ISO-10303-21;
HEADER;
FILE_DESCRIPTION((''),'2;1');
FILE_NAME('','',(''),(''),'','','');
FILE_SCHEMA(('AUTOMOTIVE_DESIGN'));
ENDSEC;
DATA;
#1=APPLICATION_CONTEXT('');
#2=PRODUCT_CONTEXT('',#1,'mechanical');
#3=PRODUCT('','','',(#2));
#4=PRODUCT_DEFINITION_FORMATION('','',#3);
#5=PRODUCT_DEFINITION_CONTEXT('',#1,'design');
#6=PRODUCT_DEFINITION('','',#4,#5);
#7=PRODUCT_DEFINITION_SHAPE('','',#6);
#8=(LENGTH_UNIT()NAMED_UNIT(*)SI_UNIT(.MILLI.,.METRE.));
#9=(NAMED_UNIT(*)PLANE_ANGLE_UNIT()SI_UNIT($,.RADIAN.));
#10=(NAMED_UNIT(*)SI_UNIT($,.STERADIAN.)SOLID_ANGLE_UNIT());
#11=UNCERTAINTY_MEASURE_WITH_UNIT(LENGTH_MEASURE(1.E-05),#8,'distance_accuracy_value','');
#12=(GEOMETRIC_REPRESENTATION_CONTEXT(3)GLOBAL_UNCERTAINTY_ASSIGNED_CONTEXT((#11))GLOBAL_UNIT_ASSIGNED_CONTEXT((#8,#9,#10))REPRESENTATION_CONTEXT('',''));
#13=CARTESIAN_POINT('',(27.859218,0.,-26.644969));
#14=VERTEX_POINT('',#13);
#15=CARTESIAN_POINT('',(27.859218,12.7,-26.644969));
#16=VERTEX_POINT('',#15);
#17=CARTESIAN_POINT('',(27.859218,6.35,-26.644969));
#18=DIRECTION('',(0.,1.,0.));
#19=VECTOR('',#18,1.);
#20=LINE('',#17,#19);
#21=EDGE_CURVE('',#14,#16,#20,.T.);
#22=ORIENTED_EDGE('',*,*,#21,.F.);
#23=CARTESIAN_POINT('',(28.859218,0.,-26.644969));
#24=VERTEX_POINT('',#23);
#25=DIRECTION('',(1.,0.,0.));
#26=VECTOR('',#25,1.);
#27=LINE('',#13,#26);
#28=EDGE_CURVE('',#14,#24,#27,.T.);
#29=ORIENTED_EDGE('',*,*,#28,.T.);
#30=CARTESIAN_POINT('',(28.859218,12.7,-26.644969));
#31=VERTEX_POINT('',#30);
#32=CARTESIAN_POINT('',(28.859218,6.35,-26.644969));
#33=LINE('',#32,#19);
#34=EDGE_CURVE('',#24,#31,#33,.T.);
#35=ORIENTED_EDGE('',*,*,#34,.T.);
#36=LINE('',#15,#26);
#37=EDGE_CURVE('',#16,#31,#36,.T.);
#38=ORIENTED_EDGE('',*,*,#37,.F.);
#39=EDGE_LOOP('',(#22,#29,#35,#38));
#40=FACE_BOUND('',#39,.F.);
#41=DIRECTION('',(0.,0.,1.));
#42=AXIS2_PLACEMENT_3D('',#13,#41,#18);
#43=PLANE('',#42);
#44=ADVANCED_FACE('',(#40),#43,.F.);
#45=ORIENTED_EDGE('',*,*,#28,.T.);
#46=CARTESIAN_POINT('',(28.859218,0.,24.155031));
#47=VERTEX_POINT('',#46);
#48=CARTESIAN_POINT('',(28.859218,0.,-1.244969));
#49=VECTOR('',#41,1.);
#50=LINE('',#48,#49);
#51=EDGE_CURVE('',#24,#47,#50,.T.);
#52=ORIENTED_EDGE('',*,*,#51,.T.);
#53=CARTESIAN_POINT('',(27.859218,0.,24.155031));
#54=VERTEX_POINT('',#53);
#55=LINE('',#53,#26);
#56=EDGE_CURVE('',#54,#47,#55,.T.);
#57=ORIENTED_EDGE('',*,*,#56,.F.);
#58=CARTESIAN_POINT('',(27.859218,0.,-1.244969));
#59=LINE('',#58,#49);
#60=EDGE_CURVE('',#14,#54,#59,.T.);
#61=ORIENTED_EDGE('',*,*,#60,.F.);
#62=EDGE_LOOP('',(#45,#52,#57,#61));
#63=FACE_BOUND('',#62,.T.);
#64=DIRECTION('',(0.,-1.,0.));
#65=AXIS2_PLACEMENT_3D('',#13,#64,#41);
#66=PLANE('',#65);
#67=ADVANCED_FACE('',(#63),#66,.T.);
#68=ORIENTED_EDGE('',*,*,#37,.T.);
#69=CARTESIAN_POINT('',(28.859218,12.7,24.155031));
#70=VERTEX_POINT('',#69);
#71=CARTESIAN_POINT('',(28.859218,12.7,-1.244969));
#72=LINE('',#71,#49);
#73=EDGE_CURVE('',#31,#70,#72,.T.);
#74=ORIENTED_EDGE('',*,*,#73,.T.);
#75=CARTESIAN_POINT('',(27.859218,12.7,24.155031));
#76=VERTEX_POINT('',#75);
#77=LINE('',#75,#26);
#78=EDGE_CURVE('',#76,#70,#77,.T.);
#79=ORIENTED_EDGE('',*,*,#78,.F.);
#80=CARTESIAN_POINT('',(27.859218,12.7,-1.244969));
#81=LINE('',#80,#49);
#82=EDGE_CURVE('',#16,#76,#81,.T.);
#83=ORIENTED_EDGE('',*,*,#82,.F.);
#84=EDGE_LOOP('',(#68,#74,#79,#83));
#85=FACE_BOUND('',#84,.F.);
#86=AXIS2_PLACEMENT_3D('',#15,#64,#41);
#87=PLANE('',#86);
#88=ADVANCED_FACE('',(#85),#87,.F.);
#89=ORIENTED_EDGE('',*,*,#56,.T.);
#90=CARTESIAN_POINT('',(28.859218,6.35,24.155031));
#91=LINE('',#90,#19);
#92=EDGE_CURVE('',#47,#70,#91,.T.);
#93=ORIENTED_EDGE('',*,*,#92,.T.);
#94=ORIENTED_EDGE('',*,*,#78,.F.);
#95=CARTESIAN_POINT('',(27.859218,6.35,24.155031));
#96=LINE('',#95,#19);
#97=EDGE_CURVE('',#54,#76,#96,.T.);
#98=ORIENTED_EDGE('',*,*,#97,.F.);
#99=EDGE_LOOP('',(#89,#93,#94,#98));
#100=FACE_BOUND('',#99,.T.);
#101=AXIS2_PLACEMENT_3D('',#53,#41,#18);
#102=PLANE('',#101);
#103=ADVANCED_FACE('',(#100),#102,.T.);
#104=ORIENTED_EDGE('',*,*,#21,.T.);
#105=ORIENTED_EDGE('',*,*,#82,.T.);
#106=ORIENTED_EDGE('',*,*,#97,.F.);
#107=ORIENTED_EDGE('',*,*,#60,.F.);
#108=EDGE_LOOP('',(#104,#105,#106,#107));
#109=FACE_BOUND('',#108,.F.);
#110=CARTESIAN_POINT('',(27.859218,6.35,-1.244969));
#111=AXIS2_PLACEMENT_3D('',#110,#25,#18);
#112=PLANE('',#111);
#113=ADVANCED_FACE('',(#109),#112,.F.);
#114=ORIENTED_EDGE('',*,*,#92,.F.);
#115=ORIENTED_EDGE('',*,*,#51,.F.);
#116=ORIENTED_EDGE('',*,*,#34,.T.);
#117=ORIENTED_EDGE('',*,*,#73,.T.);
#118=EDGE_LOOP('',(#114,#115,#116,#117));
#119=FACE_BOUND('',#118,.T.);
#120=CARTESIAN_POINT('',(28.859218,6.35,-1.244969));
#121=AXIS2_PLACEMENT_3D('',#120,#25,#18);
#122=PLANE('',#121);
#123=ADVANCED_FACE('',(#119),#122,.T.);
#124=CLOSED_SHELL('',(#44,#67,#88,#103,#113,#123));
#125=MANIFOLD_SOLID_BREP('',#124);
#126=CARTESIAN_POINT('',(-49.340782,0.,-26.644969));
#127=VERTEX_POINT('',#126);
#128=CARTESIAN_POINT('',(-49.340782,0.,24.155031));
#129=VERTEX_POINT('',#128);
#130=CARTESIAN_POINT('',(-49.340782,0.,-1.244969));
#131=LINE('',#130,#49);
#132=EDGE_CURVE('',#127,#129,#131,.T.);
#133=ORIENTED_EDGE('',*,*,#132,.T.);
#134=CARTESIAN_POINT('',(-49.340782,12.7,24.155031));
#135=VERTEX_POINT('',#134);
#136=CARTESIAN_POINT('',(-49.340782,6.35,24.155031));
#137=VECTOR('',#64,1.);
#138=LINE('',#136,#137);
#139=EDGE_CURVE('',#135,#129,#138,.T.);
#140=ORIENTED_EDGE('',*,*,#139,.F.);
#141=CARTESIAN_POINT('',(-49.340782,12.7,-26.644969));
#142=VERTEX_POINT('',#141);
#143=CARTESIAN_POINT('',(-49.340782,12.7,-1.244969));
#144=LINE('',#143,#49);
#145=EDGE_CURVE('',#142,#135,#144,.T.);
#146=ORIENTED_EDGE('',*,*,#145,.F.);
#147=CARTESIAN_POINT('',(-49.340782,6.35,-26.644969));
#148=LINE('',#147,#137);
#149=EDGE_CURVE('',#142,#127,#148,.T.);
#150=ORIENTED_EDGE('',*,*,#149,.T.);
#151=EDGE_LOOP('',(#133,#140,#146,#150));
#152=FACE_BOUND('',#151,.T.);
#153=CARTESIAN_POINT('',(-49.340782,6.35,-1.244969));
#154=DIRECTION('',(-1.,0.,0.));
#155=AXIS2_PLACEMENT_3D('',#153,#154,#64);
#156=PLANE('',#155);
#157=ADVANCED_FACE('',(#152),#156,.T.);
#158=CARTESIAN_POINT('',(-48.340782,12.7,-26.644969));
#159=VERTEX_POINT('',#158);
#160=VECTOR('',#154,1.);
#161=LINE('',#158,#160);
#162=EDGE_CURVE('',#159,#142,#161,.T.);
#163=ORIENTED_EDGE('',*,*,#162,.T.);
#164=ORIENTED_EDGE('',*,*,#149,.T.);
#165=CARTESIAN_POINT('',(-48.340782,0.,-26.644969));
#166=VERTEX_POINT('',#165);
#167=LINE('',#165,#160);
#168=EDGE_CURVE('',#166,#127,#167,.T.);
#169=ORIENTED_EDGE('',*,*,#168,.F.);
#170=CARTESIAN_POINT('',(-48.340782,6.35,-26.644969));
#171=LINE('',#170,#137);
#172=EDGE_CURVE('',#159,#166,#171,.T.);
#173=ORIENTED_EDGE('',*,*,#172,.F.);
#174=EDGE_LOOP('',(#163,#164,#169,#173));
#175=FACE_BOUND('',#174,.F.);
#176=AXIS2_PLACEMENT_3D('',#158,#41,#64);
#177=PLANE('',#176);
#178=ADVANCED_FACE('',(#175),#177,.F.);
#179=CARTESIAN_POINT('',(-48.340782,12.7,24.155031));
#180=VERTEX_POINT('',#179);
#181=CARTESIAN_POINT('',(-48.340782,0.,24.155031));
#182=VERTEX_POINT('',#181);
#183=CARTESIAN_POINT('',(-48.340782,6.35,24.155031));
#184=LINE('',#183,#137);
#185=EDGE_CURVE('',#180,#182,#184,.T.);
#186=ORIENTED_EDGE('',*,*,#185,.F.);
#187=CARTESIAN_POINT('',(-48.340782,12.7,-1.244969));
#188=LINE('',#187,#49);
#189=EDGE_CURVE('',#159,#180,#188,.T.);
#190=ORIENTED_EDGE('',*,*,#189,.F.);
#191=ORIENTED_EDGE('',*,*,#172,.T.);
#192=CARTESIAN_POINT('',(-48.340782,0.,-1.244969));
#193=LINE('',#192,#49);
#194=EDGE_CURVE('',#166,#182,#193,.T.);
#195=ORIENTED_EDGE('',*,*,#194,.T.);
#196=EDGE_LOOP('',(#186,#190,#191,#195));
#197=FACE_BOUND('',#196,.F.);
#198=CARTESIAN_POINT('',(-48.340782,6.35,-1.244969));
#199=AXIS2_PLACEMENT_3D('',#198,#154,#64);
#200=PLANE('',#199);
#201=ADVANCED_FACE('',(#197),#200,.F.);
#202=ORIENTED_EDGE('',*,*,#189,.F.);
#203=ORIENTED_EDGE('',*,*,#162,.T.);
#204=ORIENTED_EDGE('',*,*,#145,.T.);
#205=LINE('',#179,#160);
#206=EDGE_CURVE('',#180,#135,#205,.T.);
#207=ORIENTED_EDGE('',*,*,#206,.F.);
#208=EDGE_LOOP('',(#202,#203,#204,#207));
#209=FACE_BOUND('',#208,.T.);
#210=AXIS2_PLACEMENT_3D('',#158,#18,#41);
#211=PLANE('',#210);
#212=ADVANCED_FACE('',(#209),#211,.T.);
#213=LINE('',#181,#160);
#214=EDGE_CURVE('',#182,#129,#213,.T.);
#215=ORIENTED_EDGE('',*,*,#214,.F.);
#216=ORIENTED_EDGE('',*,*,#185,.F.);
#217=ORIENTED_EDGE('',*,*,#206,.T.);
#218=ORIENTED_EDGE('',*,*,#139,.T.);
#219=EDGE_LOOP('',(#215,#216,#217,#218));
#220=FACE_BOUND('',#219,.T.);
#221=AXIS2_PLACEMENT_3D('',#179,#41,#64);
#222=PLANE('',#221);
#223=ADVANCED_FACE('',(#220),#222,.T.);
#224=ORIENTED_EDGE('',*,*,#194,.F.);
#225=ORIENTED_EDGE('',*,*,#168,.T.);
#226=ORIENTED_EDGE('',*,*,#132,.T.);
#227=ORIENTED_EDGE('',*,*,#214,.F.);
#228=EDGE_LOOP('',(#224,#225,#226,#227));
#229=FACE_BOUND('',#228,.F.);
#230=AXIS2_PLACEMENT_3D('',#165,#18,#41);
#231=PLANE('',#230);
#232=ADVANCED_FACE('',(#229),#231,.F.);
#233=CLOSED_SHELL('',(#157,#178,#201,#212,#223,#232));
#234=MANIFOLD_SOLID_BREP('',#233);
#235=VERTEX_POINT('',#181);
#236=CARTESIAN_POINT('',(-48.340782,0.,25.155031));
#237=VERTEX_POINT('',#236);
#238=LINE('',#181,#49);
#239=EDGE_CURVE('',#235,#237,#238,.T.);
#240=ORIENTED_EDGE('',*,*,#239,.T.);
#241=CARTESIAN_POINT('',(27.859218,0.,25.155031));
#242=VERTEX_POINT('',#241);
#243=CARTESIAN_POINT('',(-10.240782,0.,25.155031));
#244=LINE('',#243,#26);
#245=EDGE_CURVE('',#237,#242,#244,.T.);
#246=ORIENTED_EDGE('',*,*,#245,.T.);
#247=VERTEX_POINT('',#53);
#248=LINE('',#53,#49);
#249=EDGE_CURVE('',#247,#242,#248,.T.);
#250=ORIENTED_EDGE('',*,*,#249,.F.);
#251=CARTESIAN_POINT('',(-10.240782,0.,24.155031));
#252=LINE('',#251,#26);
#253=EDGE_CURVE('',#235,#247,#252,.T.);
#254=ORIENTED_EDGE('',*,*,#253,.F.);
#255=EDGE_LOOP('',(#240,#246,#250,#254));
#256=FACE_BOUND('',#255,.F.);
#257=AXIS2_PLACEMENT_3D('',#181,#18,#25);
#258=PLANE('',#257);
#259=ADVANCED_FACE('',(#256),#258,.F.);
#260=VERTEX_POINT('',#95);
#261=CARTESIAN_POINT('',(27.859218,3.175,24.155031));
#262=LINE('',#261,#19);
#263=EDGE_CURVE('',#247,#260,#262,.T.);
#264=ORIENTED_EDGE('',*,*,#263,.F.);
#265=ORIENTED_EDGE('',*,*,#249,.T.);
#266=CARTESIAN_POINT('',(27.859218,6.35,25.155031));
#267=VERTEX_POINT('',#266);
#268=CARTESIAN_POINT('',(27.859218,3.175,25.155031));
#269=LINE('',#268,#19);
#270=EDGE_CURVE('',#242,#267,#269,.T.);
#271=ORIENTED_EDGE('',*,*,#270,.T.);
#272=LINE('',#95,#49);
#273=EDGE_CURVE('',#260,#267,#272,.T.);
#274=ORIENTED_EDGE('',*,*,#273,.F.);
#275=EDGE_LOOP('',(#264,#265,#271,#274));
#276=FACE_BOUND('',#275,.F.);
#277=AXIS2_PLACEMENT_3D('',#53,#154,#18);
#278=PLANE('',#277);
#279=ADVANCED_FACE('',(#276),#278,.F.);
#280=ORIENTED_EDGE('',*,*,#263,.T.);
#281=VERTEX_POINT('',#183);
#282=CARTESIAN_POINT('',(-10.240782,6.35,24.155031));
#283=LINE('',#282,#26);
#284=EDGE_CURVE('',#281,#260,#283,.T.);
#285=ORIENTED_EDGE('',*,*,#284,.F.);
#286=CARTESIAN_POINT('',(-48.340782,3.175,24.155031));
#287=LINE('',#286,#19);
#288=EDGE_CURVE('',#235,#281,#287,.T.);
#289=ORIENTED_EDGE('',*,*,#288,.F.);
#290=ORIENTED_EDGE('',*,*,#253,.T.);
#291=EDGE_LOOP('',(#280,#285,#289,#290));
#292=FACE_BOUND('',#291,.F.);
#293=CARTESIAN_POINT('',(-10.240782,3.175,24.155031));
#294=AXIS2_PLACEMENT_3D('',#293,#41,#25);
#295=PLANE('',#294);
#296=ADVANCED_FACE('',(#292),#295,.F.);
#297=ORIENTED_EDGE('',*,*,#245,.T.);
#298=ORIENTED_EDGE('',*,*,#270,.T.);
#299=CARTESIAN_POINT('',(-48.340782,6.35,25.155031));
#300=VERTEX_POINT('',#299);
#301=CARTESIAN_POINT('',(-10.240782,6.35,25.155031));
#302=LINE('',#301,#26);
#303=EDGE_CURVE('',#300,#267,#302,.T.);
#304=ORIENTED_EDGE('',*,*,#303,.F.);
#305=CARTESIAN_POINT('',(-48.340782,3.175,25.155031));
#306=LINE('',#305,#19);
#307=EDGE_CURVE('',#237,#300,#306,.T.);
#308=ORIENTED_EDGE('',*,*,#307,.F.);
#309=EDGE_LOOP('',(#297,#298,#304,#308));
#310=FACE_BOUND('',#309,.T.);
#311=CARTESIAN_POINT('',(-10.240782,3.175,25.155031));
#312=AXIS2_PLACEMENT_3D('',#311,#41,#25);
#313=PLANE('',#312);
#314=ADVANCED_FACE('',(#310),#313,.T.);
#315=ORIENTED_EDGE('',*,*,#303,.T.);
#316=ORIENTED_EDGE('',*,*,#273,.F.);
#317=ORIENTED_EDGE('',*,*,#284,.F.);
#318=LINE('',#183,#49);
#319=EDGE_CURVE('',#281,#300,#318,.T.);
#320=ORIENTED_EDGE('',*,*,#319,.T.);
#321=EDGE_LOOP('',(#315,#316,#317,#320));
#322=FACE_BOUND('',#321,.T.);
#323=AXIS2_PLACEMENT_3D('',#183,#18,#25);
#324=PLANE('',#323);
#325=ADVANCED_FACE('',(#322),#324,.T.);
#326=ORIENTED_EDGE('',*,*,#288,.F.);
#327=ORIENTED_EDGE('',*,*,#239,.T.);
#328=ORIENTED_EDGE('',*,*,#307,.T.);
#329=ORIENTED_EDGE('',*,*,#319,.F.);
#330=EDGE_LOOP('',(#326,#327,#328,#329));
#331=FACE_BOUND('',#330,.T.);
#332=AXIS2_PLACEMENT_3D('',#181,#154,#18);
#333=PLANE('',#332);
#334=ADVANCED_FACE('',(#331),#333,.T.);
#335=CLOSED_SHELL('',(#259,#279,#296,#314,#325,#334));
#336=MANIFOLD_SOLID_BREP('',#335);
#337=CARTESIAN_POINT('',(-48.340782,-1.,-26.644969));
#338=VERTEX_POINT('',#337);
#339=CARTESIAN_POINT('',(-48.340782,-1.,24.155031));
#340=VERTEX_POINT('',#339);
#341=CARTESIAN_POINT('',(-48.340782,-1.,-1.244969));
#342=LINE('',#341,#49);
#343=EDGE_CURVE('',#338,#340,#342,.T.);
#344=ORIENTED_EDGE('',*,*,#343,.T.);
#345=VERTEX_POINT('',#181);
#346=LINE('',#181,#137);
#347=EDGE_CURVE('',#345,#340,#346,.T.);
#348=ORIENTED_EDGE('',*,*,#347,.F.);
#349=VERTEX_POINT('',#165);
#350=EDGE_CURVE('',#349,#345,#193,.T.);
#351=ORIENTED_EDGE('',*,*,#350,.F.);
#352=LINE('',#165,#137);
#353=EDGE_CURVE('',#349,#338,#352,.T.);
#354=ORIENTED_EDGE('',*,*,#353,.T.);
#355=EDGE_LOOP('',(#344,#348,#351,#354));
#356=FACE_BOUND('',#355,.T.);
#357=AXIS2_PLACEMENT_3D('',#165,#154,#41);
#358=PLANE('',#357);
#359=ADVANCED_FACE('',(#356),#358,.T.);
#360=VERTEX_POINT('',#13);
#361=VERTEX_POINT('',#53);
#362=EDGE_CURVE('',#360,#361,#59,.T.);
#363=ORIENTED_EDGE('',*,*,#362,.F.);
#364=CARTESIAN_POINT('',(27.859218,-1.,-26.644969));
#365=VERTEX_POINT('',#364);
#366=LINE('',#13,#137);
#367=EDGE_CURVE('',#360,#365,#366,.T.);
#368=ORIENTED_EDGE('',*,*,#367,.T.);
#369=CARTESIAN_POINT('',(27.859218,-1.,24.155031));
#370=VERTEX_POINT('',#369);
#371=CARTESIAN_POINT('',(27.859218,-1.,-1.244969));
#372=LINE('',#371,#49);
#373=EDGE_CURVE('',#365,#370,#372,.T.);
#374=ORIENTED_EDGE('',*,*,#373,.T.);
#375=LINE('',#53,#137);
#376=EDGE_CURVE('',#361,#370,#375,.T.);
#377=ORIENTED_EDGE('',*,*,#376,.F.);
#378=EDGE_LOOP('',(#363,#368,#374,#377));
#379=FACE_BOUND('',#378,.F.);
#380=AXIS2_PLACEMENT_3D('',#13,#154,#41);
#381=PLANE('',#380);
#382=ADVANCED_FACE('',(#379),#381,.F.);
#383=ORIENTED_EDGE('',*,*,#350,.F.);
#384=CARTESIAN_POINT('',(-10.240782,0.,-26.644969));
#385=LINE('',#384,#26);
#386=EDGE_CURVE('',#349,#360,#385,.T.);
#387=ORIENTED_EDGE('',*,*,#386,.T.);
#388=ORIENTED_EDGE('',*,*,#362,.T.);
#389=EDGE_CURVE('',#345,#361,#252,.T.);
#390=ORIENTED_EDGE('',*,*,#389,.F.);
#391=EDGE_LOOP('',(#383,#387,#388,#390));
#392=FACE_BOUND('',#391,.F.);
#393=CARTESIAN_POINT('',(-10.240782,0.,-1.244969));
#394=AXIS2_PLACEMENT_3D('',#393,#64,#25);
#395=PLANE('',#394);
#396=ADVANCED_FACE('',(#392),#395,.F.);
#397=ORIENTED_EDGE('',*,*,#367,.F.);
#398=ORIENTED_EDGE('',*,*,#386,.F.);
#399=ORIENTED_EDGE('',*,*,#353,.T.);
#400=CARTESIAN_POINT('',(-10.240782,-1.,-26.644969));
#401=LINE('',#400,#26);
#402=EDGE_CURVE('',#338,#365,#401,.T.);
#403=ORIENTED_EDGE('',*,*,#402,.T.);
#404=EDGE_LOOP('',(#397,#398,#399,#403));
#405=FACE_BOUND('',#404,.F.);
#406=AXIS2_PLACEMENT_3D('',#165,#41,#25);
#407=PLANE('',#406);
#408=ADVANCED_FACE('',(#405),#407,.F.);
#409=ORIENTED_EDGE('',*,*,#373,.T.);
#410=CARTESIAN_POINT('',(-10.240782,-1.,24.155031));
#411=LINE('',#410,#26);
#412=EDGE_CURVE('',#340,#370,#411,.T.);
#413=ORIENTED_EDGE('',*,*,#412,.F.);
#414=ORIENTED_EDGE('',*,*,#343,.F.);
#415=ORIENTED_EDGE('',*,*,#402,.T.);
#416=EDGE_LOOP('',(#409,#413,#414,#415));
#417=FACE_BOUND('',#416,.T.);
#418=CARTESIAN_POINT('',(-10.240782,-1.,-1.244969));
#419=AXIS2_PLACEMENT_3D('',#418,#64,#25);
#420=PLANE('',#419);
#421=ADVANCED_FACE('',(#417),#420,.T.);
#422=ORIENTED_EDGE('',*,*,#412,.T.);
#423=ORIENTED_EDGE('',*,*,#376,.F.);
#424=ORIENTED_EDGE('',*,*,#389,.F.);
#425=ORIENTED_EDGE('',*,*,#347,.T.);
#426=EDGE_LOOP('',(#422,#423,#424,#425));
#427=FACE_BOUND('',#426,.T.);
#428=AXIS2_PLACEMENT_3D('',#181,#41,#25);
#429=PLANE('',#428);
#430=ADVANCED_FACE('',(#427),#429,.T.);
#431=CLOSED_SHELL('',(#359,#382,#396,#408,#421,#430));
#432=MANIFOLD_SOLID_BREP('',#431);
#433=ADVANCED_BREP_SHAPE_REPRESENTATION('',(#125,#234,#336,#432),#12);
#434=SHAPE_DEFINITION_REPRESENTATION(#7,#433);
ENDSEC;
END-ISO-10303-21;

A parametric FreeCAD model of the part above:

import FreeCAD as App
import Part
import Sketcher
from FreeCAD import Vector
Q = App.Units.Quantity

doc = App.newDocument("Part")
body = doc.addObject("PartDesign::Body", "Body")

# Sketch on XZ plane
sketch1 = body.newObject("Sketcher::SketchObject", "Sketch")
sketch1.AttachmentSupport = (doc.getObject("XZ_Plane"), [""])
sketch1.MapMode = "FlatFace"
sketch1.addGeometry(Part.LineSegment(Vector(-48.340782, 24.155031, 0), Vector(-48.340782, -26.644969, 0)), False)
sketch1.addGeometry(Part.LineSegment(Vector(-48.340782, -26.644969, 0), Vector(27.859218, -26.644969, 0)), False)
sketch1.addGeometry(Part.LineSegment(Vector(27.859218, -26.644969, 0), Vector(27.859218, 24.155031, 0)), False)
sketch1.addGeometry(Part.LineSegment(Vector(27.859218, 24.155031, 0), Vector(-48.340782, 24.155031, 0)), False)
sketch1.addConstraint(Sketcher.Constraint("Coincident", 0, 2, 1, 1))
sketch1.addConstraint(Sketcher.Constraint("Coincident", 1, 2, 2, 1))
sketch1.addConstraint(Sketcher.Constraint("Coincident", 2, 2, 3, 1))
sketch1.addConstraint(Sketcher.Constraint("Coincident", 3, 2, 0, 1))
sketch1.addConstraint(Sketcher.Constraint("Vertical", 0))
sketch1.addConstraint(Sketcher.Constraint("Horizontal", 1))
sketch1.addConstraint(Sketcher.Constraint("Vertical", 2))
sketch1.addConstraint(Sketcher.Constraint("Horizontal", 3))
sketch1.addConstraint(Sketcher.Constraint("DistanceX", 1, 1, 1, 2, Q("3 in")))
sketch1.addConstraint(Sketcher.Constraint("DistanceY", 0, 2, 0, 1, Q("2 in")))
sketch1.addConstraint(Sketcher.Constraint("DistanceX", 0, 2, -1, 1, 48.340782))
sketch1.addConstraint(Sketcher.Constraint("DistanceY", 0, 2, -1, 1, 26.644969))
pad1 = body.newObject("PartDesign::Pad", "Pad")
pad1.Profile = sketch1
pad1.Length = 1
body2 = doc.addObject("PartDesign::Body", "Body001")

# Sketch on YZ plane
sketch2 = body2.newObject("Sketcher::SketchObject", "Sketch001")
sketch2.AttachmentSupport = (doc.getObject("YZ_Plane001"), [""])
sketch2.MapMode = "FlatFace"
sketch2.AttachmentOffset = App.Placement(Vector(0, 0, 27.859218), App.Rotation())
sketch2.addGeometry(Part.LineSegment(Vector(0, 24.155031, 0), Vector(0, -26.644969, 0)), False)
sketch2.addGeometry(Part.LineSegment(Vector(0, -26.644969, 0), Vector(12.7, -26.644969, 0)), False)
sketch2.addGeometry(Part.LineSegment(Vector(12.7, -26.644969, 0), Vector(12.7, 24.155031, 0)), False)
sketch2.addGeometry(Part.LineSegment(Vector(12.7, 24.155031, 0), Vector(0, 24.155031, 0)), False)
sketch2.addConstraint(Sketcher.Constraint("Coincident", 0, 2, 1, 1))
sketch2.addConstraint(Sketcher.Constraint("Coincident", 1, 2, 2, 1))
sketch2.addConstraint(Sketcher.Constraint("Coincident", 2, 2, 3, 1))
sketch2.addConstraint(Sketcher.Constraint("Coincident", 3, 2, 0, 1))
sketch2.addConstraint(Sketcher.Constraint("Vertical", 0))
sketch2.addConstraint(Sketcher.Constraint("Horizontal", 1))
sketch2.addConstraint(Sketcher.Constraint("Vertical", 2))
sketch2.addConstraint(Sketcher.Constraint("Horizontal", 3))
sketch2.addConstraint(Sketcher.Constraint("PointOnObject", 0, 2, -2))
sketch2.addConstraint(Sketcher.Constraint("DistanceY", 0, 2, 0, 1, Q("2 in")))
sketch2.addConstraint(Sketcher.Constraint("DistanceX", 1, 1, 1, 2, Q("0.5 in")))
sketch2.addConstraint(Sketcher.Constraint("DistanceY", 0, 2, -1, 1, 26.644969))
pad2 = body2.newObject("PartDesign::Pad", "Pad001")
pad2.Profile = sketch2
pad2.Length = 1
body3 = doc.addObject("PartDesign::Body", "Body002")

# Sketch on YZ plane
sketch3 = body3.newObject("Sketcher::SketchObject", "Sketch002")
sketch3.AttachmentSupport = (doc.getObject("YZ_Plane002"), [""])
sketch3.MapMode = "FlatFace"
sketch3.AttachmentOffset = App.Placement(Vector(0, 0, -48.340782), App.Rotation())
sketch3.addGeometry(Part.LineSegment(Vector(12.7, 24.155031, 0), Vector(12.7, -26.644969, 0)), False)
sketch3.addGeometry(Part.LineSegment(Vector(12.7, -26.644969, 0), Vector(0, -26.644969, 0)), False)
sketch3.addGeometry(Part.LineSegment(Vector(0, -26.644969, 0), Vector(0, 24.155031, 0)), False)
sketch3.addGeometry(Part.LineSegment(Vector(0, 24.155031, 0), Vector(12.7, 24.155031, 0)), False)
sketch3.addConstraint(Sketcher.Constraint("Coincident", 0, 2, 1, 1))
sketch3.addConstraint(Sketcher.Constraint("Coincident", 1, 2, 2, 1))
sketch3.addConstraint(Sketcher.Constraint("Coincident", 2, 2, 3, 1))
sketch3.addConstraint(Sketcher.Constraint("Coincident", 3, 2, 0, 1))
sketch3.addConstraint(Sketcher.Constraint("Vertical", 0))
sketch3.addConstraint(Sketcher.Constraint("Horizontal", 1))
sketch3.addConstraint(Sketcher.Constraint("Vertical", 2))
sketch3.addConstraint(Sketcher.Constraint("Horizontal", 3))
sketch3.addConstraint(Sketcher.Constraint("PointOnObject", 1, 2, -2))
sketch3.addConstraint(Sketcher.Constraint("DistanceY", 0, 2, 0, 1, Q("2 in")))
sketch3.addConstraint(Sketcher.Constraint("DistanceX", 1, 2, 1, 1, Q("0.5 in")))
sketch3.addConstraint(Sketcher.Constraint("DistanceY", 0, 2, -1, 1, 26.644969))
pad3 = body3.newObject("PartDesign::Pad", "Pad002")
pad3.Profile = sketch3
pad3.Length = 1
pad3.Reversed = True
body4 = doc.addObject("PartDesign::Body", "Body003")

# Sketch on XY plane
sketch4 = body4.newObject("Sketcher::SketchObject", "Sketch003")
sketch4.AttachmentSupport = (doc.getObject("XY_Plane003"), [""])
sketch4.MapMode = "FlatFace"
sketch4.AttachmentOffset = App.Placement(Vector(0, 0, 24.155031), App.Rotation())
sketch4.addGeometry(Part.LineSegment(Vector(-48.340782, 6.35, 0), Vector(-48.340782, 0, 0)), False)
sketch4.addGeometry(Part.LineSegment(Vector(-48.340782, 0, 0), Vector(27.859218, 0, 0)), False)
sketch4.addGeometry(Part.LineSegment(Vector(27.859218, 0, 0), Vector(27.859218, 6.35, 0)), False)
sketch4.addGeometry(Part.LineSegment(Vector(27.859218, 6.35, 0), Vector(-48.340782, 6.35, 0)), False)
sketch4.addConstraint(Sketcher.Constraint("Coincident", 0, 2, 1, 1))
sketch4.addConstraint(Sketcher.Constraint("Coincident", 1, 2, 2, 1))
sketch4.addConstraint(Sketcher.Constraint("Coincident", 2, 2, 3, 1))
sketch4.addConstraint(Sketcher.Constraint("Coincident", 3, 2, 0, 1))
sketch4.addConstraint(Sketcher.Constraint("Vertical", 0))
sketch4.addConstraint(Sketcher.Constraint("Horizontal", 1))
sketch4.addConstraint(Sketcher.Constraint("Vertical", 2))
sketch4.addConstraint(Sketcher.Constraint("Horizontal", 3))
sketch4.addConstraint(Sketcher.Constraint("PointOnObject", 0, 2, -1))
sketch4.addConstraint(Sketcher.Constraint("DistanceX", 1, 1, 1, 2, Q("3 in")))
sketch4.addConstraint(Sketcher.Constraint("DistanceY", 0, 2, 0, 1, Q("0.25 in")))
sketch4.addConstraint(Sketcher.Constraint("DistanceX", 0, 2, -1, 1, 48.340782))
pad4 = body4.newObject("PartDesign::Pad", "Pad003")
pad4.Profile = sketch4
pad4.Length = 1

doc.recompute()
